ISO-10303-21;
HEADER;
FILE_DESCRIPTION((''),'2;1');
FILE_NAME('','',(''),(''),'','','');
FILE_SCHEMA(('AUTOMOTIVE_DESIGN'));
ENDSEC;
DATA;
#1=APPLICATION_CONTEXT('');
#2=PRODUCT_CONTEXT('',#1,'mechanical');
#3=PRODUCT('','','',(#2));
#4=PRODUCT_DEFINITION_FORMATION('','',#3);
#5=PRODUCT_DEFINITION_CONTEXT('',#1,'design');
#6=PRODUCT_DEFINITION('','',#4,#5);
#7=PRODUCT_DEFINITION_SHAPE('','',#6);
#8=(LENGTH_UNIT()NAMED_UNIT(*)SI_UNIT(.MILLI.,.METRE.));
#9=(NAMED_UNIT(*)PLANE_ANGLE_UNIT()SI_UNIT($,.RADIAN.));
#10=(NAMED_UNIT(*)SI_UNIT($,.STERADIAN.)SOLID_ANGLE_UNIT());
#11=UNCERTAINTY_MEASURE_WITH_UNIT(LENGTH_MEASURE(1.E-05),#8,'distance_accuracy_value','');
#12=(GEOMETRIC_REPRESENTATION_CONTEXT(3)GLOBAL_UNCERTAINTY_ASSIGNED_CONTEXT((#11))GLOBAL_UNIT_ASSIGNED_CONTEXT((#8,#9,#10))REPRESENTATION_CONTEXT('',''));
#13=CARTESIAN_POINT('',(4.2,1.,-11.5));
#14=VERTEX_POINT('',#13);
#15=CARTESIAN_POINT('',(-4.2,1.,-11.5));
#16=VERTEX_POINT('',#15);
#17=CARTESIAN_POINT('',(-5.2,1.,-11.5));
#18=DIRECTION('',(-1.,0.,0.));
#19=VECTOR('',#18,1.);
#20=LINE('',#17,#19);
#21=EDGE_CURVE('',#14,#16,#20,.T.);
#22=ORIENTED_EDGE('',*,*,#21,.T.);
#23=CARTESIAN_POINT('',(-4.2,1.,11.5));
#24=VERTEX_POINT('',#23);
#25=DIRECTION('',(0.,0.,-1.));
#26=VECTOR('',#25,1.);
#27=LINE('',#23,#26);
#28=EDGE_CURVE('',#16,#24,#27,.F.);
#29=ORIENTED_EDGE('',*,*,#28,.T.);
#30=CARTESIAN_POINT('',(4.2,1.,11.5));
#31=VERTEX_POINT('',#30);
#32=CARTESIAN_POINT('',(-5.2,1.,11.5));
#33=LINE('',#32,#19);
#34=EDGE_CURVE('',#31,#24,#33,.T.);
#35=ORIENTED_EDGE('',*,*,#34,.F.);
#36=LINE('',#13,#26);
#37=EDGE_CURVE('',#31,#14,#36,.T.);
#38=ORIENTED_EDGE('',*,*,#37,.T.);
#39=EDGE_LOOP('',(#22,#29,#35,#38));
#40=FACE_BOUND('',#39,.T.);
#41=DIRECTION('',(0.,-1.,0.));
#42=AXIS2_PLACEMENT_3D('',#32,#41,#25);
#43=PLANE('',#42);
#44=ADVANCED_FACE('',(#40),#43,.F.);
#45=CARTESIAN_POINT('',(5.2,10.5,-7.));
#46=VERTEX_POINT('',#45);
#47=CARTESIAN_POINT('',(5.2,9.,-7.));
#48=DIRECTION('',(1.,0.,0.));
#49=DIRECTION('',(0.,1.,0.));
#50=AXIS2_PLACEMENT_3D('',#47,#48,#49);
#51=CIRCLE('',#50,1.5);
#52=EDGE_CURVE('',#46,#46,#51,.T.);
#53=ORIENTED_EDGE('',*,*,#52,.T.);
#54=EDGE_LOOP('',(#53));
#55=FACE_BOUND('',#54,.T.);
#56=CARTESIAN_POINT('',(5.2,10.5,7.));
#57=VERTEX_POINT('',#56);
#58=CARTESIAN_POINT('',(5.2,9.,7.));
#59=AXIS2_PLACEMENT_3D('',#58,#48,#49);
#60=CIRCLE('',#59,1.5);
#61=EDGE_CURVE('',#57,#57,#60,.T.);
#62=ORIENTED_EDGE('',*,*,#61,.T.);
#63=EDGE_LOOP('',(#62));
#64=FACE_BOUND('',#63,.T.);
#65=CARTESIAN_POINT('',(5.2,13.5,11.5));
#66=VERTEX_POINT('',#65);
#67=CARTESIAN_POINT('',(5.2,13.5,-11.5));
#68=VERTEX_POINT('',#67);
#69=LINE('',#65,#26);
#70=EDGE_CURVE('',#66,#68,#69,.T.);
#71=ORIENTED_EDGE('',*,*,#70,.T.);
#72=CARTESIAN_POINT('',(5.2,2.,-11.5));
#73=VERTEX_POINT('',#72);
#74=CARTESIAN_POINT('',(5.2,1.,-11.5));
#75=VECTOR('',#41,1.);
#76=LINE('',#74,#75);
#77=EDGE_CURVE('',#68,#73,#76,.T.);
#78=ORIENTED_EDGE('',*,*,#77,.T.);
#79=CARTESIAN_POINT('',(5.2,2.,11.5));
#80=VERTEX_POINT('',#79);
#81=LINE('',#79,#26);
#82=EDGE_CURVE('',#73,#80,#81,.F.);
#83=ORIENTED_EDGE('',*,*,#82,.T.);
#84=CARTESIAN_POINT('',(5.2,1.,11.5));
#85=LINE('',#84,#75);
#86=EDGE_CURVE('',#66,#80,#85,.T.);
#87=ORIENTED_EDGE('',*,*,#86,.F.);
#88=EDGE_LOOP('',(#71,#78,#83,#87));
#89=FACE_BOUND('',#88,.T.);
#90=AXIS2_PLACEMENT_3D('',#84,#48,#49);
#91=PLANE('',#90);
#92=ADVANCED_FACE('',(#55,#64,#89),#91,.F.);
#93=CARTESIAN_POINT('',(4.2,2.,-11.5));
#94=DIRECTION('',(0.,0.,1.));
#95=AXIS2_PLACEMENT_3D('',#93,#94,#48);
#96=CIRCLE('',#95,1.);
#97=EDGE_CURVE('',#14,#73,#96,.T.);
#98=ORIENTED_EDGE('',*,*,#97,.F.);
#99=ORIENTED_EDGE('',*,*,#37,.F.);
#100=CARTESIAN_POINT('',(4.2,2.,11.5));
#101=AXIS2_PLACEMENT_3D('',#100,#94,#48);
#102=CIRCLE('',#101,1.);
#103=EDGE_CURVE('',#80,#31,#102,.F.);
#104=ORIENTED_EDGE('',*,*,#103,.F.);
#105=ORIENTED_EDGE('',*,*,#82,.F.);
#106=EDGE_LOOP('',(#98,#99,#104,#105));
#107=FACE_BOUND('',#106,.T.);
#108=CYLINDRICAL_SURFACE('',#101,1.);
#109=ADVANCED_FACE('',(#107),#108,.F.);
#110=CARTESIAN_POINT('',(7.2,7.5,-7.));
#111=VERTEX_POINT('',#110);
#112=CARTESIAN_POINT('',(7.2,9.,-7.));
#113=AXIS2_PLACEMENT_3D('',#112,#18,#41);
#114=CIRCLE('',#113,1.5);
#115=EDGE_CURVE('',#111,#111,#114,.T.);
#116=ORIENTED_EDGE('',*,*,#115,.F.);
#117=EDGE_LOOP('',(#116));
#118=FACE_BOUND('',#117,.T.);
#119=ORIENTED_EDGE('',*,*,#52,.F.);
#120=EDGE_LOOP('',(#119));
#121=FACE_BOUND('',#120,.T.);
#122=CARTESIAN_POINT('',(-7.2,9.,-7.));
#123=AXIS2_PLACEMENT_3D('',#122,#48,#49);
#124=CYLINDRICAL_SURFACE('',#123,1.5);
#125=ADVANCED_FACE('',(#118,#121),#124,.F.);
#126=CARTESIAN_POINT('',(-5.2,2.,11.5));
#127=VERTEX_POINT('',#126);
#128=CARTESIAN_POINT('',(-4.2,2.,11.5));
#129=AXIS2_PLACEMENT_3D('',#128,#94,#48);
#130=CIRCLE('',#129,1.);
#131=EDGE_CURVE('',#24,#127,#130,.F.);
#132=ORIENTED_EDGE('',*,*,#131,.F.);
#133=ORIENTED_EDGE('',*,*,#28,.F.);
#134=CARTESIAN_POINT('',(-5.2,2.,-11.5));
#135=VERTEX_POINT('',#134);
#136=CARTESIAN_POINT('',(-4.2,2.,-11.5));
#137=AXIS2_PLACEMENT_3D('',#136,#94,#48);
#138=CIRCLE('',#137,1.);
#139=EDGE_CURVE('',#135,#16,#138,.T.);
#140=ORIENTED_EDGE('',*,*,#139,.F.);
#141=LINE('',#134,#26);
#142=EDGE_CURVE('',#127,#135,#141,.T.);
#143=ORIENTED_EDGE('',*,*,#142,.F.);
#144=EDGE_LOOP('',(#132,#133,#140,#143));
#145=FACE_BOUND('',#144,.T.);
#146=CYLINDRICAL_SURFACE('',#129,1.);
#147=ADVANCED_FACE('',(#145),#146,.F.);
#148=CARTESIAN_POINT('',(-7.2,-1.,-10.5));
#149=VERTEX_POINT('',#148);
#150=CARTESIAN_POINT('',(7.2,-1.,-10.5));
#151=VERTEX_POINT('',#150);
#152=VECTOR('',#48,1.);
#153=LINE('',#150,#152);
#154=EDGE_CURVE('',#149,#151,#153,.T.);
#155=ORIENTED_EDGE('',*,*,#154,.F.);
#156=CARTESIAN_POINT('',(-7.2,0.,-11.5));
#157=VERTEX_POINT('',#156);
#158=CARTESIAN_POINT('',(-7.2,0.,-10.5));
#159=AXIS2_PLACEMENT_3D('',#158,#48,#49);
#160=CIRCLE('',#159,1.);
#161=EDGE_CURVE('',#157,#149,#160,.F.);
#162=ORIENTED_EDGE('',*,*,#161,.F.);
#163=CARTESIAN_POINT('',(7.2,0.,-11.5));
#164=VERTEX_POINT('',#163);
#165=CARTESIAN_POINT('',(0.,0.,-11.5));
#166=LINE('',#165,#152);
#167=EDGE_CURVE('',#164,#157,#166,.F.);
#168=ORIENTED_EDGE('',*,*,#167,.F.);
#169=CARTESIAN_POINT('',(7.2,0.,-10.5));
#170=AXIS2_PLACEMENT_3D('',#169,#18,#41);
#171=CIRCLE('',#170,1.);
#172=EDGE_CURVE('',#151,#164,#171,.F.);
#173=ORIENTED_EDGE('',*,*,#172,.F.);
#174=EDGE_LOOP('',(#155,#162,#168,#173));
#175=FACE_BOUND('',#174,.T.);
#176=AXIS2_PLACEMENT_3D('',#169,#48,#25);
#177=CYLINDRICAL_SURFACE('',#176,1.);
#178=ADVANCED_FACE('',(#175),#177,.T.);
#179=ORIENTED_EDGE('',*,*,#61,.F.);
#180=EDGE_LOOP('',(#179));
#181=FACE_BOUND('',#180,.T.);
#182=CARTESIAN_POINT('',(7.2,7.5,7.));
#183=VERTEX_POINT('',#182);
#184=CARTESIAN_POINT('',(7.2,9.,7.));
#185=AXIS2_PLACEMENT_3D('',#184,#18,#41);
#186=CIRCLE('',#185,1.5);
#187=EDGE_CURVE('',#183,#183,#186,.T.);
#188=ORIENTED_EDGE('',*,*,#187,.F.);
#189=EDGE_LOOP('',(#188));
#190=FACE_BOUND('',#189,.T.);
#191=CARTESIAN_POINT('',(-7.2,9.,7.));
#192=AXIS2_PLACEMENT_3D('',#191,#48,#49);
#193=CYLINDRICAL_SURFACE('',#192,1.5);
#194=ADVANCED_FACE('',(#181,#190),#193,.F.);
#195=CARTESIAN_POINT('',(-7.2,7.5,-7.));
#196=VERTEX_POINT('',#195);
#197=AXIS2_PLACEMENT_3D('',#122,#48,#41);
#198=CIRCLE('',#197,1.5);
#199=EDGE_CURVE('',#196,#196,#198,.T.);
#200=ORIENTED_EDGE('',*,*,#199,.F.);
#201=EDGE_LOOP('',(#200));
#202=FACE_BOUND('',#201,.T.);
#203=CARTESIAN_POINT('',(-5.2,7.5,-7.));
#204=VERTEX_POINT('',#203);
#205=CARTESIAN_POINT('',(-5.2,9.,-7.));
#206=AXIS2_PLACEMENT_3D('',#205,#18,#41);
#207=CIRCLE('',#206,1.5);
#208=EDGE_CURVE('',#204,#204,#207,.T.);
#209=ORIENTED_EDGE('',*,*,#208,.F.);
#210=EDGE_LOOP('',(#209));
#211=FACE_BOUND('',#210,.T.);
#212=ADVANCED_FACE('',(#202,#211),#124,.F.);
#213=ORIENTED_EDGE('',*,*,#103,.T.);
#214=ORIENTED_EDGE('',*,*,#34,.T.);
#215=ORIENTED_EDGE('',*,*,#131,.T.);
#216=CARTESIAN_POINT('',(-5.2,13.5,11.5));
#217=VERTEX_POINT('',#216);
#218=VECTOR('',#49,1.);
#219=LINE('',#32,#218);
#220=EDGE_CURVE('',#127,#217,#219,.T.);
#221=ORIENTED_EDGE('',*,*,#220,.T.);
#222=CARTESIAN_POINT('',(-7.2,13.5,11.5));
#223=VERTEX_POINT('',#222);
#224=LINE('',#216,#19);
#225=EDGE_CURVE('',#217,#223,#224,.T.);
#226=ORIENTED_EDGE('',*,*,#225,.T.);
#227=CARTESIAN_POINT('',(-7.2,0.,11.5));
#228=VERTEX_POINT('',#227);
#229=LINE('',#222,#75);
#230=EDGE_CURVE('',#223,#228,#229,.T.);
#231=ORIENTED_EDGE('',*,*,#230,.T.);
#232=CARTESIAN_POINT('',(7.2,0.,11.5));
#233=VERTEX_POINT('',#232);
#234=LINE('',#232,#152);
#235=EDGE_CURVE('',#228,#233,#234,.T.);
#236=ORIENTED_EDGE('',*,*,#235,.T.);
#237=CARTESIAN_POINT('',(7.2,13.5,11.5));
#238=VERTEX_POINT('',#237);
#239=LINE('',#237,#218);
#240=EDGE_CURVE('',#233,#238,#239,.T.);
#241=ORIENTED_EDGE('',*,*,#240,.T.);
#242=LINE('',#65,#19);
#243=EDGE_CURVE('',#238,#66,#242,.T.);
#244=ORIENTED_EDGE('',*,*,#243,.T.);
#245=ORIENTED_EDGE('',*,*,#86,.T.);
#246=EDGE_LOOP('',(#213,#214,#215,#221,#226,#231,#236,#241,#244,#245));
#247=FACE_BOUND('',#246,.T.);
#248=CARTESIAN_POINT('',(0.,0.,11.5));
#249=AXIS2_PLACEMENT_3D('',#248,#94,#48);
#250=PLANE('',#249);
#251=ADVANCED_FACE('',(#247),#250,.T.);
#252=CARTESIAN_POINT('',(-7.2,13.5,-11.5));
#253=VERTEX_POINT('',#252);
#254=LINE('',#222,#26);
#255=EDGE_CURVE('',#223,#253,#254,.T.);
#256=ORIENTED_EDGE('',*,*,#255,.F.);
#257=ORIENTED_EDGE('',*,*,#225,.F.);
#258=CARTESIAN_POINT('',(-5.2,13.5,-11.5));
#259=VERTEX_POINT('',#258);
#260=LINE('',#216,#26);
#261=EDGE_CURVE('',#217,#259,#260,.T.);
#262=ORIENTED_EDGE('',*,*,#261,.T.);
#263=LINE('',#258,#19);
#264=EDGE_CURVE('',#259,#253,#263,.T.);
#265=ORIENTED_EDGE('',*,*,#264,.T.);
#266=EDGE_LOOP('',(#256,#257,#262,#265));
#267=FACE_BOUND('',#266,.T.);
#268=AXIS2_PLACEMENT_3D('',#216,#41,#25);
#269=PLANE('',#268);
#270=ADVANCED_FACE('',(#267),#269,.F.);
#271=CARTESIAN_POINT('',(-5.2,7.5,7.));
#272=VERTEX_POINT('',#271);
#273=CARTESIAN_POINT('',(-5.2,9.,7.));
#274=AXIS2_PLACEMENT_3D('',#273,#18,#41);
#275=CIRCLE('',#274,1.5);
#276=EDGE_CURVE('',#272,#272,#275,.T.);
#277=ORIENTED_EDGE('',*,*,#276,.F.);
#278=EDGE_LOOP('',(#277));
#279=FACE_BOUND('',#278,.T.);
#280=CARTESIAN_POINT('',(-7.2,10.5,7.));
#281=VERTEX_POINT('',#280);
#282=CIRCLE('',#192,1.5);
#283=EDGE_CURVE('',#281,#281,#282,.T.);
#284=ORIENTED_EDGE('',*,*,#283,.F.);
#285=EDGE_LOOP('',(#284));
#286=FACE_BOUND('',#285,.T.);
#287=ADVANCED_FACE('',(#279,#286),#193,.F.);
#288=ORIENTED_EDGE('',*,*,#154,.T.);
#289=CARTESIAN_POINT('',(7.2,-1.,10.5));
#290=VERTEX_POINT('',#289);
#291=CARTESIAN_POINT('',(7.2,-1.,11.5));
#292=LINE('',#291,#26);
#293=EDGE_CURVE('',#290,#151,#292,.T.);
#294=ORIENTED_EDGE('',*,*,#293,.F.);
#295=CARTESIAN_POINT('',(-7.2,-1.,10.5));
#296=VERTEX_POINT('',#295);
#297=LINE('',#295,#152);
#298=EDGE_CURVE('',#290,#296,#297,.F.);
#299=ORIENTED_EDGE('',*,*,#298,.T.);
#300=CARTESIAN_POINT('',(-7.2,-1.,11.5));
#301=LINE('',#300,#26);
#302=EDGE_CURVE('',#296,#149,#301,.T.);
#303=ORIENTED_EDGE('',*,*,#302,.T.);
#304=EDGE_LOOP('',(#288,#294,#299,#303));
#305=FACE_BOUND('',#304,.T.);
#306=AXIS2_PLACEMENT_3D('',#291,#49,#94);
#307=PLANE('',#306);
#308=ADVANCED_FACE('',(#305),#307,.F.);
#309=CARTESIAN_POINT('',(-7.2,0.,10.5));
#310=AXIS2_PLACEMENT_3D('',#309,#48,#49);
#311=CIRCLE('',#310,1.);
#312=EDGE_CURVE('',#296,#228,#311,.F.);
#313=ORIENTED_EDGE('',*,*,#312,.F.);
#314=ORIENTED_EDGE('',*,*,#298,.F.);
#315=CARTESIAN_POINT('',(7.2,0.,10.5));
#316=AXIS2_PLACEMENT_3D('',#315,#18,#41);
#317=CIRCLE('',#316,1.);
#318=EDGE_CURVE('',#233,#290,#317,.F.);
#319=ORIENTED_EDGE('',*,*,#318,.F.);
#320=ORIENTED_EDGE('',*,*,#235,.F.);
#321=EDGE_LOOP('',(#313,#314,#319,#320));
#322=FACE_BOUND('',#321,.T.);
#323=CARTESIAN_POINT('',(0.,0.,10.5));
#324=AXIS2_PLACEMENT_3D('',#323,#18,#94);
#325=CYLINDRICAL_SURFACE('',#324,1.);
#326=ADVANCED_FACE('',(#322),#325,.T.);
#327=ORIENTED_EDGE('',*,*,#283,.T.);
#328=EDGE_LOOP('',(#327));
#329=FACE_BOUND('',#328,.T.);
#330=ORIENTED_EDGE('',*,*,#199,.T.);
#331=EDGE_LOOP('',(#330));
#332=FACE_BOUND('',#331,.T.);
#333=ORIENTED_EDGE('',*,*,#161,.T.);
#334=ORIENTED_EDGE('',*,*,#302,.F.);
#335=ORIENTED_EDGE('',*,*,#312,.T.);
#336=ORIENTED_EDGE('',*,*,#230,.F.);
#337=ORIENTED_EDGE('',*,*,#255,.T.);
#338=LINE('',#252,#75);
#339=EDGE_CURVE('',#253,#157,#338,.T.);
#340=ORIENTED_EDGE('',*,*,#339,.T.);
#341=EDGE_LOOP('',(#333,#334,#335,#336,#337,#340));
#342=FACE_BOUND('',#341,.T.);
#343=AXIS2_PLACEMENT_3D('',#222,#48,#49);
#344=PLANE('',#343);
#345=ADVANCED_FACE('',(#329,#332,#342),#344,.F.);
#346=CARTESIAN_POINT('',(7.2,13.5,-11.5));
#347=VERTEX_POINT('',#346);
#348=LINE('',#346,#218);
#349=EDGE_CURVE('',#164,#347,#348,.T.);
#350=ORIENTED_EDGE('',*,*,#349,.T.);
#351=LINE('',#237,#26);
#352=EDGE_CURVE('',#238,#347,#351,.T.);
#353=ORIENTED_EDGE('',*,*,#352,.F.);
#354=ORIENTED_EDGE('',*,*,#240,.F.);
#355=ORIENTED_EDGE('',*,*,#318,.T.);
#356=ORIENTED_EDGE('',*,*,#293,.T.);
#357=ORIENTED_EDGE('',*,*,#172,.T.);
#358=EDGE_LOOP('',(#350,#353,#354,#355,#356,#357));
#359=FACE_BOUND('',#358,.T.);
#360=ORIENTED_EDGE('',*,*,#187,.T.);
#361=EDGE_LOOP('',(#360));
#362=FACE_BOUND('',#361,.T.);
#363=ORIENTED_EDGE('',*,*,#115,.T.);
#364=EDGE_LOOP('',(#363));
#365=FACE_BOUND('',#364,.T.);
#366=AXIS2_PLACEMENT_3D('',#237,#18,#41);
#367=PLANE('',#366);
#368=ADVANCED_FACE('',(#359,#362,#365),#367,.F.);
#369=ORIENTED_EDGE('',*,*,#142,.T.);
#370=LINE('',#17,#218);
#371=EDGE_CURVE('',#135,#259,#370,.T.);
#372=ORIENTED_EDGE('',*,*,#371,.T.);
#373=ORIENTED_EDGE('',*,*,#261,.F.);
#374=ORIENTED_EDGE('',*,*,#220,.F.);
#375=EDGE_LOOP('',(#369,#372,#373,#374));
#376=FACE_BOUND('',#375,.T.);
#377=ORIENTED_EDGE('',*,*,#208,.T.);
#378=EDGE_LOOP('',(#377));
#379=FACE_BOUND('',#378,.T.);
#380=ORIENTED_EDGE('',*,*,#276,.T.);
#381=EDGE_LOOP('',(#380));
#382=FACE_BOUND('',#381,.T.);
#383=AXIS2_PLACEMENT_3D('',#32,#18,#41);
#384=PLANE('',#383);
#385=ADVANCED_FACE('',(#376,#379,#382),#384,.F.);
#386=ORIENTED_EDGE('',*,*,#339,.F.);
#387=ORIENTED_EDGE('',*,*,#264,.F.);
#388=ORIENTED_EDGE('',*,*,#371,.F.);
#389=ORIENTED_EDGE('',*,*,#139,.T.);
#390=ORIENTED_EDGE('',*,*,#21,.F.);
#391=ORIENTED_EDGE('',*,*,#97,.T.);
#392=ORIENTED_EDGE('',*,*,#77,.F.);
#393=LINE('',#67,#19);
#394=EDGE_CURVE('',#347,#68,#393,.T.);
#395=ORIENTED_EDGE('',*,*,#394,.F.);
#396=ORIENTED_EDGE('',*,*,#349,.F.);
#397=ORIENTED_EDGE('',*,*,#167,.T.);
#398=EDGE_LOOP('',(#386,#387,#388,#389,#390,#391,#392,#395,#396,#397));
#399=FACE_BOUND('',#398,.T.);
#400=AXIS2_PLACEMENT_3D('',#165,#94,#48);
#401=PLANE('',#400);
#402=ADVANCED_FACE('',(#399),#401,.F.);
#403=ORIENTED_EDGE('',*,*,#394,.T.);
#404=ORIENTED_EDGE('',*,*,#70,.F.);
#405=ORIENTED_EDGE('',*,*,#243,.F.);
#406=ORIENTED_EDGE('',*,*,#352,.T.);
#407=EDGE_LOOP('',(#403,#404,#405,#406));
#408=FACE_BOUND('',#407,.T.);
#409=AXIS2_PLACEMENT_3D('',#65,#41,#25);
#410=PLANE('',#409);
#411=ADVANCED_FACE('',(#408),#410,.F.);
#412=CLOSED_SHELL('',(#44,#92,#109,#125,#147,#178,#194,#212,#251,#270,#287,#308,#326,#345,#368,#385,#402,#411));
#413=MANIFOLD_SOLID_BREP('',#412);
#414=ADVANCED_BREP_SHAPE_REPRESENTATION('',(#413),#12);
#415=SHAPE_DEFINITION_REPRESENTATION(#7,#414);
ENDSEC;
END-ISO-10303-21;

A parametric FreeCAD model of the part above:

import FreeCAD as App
import Part
import Sketcher


def edges_at(feature, points):
    """Names of the edges that pass closest to the given points."""
    edges = feature.Shape.Edges
    near = lambda p: min(range(len(edges)), key=lambda i: edges[i].distToShape(Part.Vertex(*p))[0])
    return sorted({f"Edge{near(p) + 1}" for p in points})


def add_polygon(sketch, points):
    """Adds a closed chain of lines whose ends are joined by coincident constraints."""
    first, n = sketch.GeometryCount, len(points)
    for a, b in zip(points, points[1:] + points[:1]):
        sketch.addGeometry(Part.LineSegment(App.Vector(*a, 0), App.Vector(*b, 0)), False)
    for i in range(n):
        sketch.addConstraint(Sketcher.Constraint("Coincident", first + i, 2, first + (i + 1) % n, 1))

doc = App.newDocument("Part")
body = doc.addObject("PartDesign::Body", "Body")

sketch1 = body.newObject("Sketcher::SketchObject", "Sketch")
sketch1.AttachmentSupport = (doc.getObject("XY_Plane"), [""])
sketch1.MapMode = "FlatFace"
add_polygon(sketch1, [(5.2, 1), (-5.2, 1), (-5.2, 13.5), (-7.2, 13.5), (-7.2, -1), (7.2, -1), (7.2, 13.5), (5.2, 13.5)])
sketch1.addConstraint([
    Sketcher.Constraint("Horizontal", 0),
    Sketcher.Constraint("Vertical", 1),
    Sketcher.Constraint("Horizontal", 2),
    Sketcher.Constraint("Vertical", 3),
    Sketcher.Constraint("Horizontal", 4),
    Sketcher.Constraint("Vertical", 5),
    Sketcher.Constraint("Horizontal", 6),
    Sketcher.Constraint("Vertical", 7),
    Sketcher.Constraint("Symmetric", 2, 2, 5, 2, -2),
    Sketcher.Constraint("Equal", 2, 6),
    Sketcher.Constraint("DistanceX", 2, 2, 2, 1, 2.0),
    Sketcher.Constraint("DistanceX", 0, 2, 0, 1, 10.4),
    Sketcher.Constraint("DistanceY", 1, 1, 1, 2, 12.5),
    Sketcher.Constraint("DistanceY", 3, 2, 3, 1, 14.5),
    Sketcher.Constraint("DistanceY", -1, 1, 0, 2, 1.0),
])
pad1 = body.newObject("PartDesign::Pad", "Pad")
pad1.Profile = sketch1
pad1.Length = 23
pad1.Midplane = True

sketch2 = body.newObject("Sketcher::SketchObject", "Sketch001")
sketch2.AttachmentSupport = (doc.getObject("YZ_Plane"), [""])
sketch2.MapMode = "FlatFace"
sketch2.AttachmentOffset = App.Placement(App.Vector(0, 0, 7.2), App.Rotation())
sketch2.addGeometry([
    Part.Circle(App.Vector(9, 7, 0), App.Vector(0, 0, 1), 1.5),
    Part.Circle(App.Vector(9, -7, 0), App.Vector(0, 0, 1), 1.5),
], False)
sketch2.addConstraint([
    Sketcher.Constraint("Equal", 0, 1),
    Sketcher.Constraint("Symmetric", 0, 3, 1, 3, -1),
    Sketcher.Constraint("Diameter", 0, 3.0),
    Sketcher.Constraint("DistanceX", -1, 1, 0, 3, 9.0),
    Sketcher.Constraint("DistanceY", -1, 1, 0, 3, 7.0),
])
pocket1 = body.newObject("PartDesign::Pocket", "Pocket")
pocket1.Profile = sketch2
pocket1.Type = "ThroughAll"
pocket1.Midplane = True
doc.recompute()

fillet = body.newObject("PartDesign::Fillet", "Fillet")
fillet.Base = (pocket1, edges_at(pocket1, [(0, -1, -11.5), (0, -1, 11.5)]))
fillet.Radius = 1
doc.recompute()

fillet2 = body.newObject("PartDesign::Fillet", "Fillet001")
fillet2.Base = (fillet, edges_at(fillet, [(-5.2, 1, 0), (5.2, 1, 0)]))
fillet2.Radius = 1

doc.recompute()
